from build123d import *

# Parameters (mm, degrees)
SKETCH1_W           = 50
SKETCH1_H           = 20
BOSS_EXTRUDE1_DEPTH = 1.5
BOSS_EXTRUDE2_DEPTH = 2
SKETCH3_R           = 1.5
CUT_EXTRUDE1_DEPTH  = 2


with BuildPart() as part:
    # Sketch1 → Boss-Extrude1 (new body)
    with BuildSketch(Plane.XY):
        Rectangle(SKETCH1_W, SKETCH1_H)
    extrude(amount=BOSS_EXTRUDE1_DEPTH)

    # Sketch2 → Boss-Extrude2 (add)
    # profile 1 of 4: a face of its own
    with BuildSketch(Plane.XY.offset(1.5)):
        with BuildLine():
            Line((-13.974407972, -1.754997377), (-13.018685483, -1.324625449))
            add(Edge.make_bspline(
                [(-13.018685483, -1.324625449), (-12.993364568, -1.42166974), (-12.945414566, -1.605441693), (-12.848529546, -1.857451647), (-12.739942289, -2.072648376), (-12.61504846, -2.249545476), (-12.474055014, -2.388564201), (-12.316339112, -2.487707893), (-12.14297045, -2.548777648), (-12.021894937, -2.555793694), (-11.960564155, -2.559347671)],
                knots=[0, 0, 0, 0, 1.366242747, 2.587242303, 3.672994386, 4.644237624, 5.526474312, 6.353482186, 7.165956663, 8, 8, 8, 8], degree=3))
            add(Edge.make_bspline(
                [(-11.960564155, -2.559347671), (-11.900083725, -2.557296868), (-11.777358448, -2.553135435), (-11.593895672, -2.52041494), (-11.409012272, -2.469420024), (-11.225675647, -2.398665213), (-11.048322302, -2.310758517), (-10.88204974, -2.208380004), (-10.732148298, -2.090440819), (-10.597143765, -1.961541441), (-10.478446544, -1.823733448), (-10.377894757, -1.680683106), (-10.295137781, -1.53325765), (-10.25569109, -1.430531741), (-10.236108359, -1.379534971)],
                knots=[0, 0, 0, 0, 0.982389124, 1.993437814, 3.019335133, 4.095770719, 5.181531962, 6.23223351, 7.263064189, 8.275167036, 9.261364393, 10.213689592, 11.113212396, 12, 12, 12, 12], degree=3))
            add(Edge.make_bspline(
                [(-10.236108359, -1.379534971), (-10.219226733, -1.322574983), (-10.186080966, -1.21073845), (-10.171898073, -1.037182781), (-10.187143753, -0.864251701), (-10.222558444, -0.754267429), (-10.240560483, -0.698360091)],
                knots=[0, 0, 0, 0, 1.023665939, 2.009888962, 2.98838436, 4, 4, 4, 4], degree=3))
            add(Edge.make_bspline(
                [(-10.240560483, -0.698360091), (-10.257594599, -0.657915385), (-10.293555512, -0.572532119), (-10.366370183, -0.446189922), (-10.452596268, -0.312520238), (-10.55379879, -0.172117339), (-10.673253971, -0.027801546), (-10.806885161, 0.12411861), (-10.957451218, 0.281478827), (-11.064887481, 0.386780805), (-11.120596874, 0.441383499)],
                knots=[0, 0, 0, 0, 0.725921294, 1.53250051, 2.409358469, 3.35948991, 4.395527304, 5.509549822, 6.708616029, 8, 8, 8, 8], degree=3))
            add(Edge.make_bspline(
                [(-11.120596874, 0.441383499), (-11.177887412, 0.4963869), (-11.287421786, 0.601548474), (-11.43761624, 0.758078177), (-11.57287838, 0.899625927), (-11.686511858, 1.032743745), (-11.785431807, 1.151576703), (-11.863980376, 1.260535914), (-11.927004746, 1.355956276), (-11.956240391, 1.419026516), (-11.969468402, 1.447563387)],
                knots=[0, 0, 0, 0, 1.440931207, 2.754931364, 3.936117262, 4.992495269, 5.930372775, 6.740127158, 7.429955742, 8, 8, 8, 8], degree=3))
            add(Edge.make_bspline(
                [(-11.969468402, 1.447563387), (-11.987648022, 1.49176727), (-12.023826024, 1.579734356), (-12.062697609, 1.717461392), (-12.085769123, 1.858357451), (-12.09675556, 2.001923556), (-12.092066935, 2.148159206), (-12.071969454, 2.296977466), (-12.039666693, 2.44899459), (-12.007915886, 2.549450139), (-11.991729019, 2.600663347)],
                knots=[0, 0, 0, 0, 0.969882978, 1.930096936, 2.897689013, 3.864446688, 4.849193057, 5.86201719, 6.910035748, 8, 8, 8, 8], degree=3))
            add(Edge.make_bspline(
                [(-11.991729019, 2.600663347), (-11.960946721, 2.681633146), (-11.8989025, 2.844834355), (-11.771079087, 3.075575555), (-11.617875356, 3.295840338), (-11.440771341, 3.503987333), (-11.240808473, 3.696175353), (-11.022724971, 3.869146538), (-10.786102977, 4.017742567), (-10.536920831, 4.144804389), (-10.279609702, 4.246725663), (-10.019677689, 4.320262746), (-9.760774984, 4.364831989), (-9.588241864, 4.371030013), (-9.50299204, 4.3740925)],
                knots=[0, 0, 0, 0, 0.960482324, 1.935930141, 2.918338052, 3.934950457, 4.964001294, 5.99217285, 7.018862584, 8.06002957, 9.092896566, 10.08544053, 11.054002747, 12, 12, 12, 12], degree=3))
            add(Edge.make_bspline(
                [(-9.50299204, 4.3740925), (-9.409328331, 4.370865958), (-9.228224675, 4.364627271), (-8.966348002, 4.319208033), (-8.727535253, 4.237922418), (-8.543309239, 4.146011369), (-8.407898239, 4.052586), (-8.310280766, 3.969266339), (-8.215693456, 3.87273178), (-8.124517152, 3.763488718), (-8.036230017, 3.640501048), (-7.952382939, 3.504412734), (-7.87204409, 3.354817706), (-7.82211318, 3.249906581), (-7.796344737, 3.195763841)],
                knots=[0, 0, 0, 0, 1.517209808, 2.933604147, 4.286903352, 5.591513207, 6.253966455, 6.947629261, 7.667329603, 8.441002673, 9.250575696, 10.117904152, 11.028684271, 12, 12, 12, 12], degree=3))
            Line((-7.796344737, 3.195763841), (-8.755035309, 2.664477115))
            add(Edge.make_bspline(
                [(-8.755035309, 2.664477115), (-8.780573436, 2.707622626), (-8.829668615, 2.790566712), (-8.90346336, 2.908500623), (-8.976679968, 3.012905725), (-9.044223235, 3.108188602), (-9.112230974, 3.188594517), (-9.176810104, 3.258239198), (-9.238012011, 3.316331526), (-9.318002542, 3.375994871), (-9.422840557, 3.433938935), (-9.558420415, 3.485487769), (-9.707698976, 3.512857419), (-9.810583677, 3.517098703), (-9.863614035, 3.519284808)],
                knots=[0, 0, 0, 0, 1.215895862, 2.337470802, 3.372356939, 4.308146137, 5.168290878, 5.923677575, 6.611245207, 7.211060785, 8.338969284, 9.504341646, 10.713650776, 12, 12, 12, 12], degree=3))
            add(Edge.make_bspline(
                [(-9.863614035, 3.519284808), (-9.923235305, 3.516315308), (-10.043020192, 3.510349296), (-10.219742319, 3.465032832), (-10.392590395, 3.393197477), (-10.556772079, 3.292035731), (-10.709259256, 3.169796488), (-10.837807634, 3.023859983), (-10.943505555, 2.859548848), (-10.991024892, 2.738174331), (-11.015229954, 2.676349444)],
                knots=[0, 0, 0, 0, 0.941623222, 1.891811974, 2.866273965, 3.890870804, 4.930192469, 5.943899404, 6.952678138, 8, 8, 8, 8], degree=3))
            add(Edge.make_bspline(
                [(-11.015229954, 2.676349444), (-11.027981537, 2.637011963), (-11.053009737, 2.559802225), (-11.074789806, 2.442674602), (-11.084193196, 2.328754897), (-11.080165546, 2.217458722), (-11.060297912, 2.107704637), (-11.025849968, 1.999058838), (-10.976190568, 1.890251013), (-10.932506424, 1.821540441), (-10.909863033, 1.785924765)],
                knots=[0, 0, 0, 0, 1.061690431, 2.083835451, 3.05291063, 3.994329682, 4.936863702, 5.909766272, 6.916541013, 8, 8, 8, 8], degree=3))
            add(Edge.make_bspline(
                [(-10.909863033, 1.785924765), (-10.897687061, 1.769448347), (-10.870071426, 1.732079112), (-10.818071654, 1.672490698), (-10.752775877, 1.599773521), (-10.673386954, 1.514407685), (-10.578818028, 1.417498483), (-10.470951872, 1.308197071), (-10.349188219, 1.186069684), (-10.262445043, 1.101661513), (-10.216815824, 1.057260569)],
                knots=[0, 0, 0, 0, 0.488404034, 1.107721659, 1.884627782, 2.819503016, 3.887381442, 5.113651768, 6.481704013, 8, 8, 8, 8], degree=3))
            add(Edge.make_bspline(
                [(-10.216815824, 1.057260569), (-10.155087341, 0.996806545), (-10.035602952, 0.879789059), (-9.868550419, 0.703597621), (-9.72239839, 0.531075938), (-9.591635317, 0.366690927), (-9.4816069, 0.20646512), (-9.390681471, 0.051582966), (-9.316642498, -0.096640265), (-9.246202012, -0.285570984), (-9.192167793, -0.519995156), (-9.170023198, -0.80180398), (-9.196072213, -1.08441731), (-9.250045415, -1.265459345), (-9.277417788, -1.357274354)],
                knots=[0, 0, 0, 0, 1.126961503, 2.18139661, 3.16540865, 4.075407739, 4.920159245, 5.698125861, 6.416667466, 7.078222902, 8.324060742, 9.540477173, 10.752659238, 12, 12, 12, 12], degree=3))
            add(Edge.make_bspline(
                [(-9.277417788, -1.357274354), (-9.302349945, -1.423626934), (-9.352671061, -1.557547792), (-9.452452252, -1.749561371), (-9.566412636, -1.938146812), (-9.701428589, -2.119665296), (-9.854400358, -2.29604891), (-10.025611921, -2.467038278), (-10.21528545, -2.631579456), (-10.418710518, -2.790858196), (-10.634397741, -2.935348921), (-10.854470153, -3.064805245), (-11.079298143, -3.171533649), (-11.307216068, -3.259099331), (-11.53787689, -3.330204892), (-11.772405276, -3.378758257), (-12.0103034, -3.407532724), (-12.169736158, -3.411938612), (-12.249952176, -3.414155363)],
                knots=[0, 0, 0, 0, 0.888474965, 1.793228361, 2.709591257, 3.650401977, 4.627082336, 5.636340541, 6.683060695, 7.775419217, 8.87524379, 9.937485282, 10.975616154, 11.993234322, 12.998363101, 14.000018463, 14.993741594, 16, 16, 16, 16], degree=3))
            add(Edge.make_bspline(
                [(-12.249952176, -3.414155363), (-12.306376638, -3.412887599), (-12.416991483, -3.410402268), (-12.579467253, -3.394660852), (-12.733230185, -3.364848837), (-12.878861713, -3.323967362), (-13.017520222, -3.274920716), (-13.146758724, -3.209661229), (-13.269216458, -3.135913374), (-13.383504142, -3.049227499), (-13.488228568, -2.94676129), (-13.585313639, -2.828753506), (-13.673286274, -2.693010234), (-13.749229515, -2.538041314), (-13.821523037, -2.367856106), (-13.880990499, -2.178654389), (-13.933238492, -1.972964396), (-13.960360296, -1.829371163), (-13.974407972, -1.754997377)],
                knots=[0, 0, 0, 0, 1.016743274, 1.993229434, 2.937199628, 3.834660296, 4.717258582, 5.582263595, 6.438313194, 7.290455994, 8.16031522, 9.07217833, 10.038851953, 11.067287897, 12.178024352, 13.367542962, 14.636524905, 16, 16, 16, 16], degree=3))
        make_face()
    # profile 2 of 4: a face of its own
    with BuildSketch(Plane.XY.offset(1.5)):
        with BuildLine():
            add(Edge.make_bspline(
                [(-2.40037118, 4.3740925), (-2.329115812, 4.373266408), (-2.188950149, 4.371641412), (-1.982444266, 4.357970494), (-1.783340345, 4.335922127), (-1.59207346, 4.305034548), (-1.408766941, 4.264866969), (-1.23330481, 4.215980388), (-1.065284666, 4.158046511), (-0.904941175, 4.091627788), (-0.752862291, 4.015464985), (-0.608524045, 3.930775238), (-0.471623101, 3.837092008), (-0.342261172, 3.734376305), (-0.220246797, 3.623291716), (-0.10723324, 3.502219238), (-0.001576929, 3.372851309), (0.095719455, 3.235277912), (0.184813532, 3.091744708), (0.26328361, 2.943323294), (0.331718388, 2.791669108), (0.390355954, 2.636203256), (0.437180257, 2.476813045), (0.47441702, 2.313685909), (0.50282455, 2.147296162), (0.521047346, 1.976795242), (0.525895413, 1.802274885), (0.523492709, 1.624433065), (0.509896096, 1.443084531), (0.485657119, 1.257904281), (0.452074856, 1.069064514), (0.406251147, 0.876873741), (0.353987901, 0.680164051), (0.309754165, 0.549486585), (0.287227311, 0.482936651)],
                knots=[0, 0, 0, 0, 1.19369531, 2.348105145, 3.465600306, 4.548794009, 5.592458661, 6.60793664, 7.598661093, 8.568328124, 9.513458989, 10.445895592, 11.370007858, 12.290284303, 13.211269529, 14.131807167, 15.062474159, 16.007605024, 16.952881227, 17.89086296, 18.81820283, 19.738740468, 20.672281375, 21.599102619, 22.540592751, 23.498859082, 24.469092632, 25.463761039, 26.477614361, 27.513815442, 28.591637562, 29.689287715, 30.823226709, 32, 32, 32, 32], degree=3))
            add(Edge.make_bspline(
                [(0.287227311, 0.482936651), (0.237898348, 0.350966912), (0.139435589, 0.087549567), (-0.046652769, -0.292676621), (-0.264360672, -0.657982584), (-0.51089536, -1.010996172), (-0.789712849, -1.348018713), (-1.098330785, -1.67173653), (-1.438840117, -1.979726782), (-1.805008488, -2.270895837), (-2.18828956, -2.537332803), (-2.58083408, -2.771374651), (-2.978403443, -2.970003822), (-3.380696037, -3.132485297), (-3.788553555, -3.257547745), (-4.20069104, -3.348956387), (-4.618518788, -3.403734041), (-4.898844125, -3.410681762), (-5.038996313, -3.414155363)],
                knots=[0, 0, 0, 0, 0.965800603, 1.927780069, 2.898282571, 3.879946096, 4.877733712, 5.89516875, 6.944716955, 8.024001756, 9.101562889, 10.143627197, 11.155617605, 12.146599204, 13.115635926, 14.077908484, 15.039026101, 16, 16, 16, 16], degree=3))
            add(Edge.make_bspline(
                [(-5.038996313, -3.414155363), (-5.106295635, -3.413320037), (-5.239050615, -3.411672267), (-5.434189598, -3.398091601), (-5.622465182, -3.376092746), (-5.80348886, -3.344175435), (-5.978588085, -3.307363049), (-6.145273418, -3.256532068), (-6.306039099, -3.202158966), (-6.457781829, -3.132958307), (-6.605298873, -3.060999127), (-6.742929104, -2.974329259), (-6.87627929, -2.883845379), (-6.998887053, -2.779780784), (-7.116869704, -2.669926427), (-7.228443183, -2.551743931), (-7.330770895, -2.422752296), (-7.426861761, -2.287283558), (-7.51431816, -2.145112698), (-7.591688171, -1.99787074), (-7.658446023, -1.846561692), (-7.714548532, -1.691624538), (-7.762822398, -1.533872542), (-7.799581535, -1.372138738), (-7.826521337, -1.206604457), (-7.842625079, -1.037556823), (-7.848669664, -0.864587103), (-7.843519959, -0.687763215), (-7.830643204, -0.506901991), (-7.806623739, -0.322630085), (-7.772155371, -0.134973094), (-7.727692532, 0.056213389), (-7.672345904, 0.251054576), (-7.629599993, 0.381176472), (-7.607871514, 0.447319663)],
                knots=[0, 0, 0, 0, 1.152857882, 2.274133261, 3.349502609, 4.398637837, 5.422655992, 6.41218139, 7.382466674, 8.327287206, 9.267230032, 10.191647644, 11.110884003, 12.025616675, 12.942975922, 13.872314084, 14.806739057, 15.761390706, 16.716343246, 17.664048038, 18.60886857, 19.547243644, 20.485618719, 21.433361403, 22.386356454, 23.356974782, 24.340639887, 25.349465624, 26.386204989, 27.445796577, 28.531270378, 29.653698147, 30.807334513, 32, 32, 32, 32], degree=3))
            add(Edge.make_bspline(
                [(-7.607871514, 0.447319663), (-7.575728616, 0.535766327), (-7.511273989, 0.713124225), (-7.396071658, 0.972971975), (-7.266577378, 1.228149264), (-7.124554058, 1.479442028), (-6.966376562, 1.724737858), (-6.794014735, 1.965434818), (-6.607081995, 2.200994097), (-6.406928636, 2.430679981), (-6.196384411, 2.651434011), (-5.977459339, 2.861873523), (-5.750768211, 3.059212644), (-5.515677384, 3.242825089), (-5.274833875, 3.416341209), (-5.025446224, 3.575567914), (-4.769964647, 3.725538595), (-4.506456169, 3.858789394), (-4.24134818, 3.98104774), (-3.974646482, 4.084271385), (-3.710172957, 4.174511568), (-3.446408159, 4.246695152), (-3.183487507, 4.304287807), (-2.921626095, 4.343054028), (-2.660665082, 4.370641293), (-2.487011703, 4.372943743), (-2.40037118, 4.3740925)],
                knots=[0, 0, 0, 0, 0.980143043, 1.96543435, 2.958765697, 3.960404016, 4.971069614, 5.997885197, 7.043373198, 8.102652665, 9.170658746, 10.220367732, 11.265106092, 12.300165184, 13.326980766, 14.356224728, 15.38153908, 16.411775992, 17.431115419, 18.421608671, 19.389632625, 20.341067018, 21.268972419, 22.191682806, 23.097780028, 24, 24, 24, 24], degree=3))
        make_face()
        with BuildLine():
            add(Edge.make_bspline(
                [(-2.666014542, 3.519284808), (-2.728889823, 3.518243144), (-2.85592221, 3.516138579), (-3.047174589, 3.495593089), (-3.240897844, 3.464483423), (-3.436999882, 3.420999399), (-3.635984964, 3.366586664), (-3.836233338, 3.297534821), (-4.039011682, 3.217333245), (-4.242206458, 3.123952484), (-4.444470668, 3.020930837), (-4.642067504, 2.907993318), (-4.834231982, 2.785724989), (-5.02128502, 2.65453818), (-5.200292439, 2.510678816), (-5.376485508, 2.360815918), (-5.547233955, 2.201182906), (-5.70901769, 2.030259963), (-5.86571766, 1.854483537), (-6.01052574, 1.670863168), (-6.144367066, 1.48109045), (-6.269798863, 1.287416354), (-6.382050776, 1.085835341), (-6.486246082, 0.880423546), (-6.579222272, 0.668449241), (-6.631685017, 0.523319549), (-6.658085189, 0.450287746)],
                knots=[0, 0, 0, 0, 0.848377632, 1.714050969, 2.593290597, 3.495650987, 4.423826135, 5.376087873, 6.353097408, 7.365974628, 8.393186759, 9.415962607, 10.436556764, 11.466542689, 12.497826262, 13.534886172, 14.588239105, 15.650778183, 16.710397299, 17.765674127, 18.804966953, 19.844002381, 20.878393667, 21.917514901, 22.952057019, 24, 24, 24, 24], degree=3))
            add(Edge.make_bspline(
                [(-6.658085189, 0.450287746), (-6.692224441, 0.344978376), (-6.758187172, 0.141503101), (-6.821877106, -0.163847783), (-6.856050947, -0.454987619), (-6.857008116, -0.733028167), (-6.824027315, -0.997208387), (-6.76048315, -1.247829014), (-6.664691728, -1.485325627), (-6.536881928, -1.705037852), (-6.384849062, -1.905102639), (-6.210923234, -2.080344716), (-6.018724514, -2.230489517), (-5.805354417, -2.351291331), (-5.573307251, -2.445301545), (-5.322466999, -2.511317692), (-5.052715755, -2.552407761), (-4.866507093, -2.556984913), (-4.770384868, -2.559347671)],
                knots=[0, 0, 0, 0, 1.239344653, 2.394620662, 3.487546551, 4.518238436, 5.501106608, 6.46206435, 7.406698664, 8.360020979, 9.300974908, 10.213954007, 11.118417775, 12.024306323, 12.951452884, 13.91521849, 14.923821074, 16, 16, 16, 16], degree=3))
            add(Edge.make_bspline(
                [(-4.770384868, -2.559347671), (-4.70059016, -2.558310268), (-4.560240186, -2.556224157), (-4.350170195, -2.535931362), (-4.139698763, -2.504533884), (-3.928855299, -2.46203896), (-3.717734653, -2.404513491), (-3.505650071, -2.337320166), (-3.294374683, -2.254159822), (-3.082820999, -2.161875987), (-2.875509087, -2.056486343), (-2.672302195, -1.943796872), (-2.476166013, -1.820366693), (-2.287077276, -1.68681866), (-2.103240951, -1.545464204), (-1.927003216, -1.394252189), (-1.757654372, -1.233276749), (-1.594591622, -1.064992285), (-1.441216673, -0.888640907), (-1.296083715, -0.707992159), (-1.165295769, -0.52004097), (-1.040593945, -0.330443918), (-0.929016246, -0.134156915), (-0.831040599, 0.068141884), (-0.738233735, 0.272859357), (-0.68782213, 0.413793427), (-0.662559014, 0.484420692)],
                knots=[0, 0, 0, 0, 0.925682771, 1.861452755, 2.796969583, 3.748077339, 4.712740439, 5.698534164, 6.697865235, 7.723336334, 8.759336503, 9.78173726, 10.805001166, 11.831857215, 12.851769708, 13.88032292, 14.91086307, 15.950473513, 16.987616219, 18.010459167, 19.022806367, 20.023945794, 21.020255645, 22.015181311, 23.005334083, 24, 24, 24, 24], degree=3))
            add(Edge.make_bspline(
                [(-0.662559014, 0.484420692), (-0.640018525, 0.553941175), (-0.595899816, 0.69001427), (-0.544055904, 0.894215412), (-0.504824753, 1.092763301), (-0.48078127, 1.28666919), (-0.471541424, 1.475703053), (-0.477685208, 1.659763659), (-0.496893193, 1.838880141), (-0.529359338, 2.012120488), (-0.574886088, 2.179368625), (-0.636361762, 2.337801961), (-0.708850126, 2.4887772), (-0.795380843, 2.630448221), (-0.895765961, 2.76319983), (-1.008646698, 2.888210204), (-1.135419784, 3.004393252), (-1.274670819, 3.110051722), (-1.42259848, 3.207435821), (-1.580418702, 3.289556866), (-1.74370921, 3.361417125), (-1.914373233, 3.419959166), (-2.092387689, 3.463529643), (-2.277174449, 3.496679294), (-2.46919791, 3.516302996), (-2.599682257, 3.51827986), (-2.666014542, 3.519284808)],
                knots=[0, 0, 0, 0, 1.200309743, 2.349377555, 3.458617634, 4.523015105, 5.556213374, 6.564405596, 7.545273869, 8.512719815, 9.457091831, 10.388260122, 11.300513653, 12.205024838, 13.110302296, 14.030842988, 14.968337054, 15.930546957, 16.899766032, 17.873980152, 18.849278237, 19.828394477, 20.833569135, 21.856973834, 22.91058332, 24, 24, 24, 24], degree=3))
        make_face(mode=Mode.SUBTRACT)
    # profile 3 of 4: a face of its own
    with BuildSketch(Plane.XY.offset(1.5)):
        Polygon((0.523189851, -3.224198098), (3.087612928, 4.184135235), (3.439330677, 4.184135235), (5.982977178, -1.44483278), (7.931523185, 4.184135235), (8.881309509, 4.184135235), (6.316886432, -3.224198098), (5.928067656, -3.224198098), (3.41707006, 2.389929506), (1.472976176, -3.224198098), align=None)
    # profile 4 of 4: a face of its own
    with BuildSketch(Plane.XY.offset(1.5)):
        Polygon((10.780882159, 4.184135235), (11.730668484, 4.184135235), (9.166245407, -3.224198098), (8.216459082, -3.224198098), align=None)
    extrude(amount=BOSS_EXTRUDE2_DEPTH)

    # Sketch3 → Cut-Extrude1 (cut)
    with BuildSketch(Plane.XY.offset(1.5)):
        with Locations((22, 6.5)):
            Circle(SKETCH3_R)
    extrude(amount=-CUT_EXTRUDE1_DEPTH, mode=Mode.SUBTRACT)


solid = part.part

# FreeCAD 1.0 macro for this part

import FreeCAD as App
import Part
import Sketcher

V = App.Vector
Q = App.Units.Quantity

doc = App.newDocument("Part")
body = doc.addObject("PartDesign::Body", "Body")

# Sketch on XY plane
sketch1 = body.newObject("Sketcher::SketchObject", "Sketch")
sketch1.AttachmentSupport = (doc.getObject("XY_Plane"), [""])
sketch1.MapMode = "FlatFace"
sketch1.addGeometry([
    Part.LineSegment(V(-25, 10, 0), V(-25, -10, 0)),
    Part.LineSegment(V(-25, -10, 0), V(25, -10, 0)),
    Part.LineSegment(V(25, -10, 0), V(25, 10, 0)),
    Part.LineSegment(V(25, 10, 0), V(-25, 10, 0)),
], False)
sketch1.addConstraint([
    Sketcher.Constraint("Coincident", 0, 2, 1, 1),
    Sketcher.Constraint("Coincident", 1, 2, 2, 1),
    Sketcher.Constraint("Coincident", 2, 2, 3, 1),
    Sketcher.Constraint("Coincident", 3, 2, 0, 1),
    Sketcher.Constraint("Vertical", 0),
    Sketcher.Constraint("Horizontal", 1),
    Sketcher.Constraint("Vertical", 2),
    Sketcher.Constraint("Horizontal", 3),
    Sketcher.Constraint("Symmetric", 0, 2, 2, 2, -1, 1),
    Sketcher.Constraint("DistanceX", 1, 1, 1, 2, Q("50 mm")),
    Sketcher.Constraint("DistanceY", 0, 2, 0, 1, Q("20 mm")),
])
pad1 = body.newObject("PartDesign::Pad", "Pad")
pad1.Profile = sketch1
pad1.Length = 1.5

# Sketch on XY plane
sketch2 = body.newObject("Sketcher::SketchObject", "Sketch001")
sketch2.AttachmentSupport = (doc.getObject("XY_Plane"), [""])
sketch2.MapMode = "FlatFace"
sketch2.AttachmentOffset = App.Placement(V(0, 0, 1.5), App.Rotation())
sketch2.addGeometry([
    Part.LineSegment(V(-13.018685, -1.324625, 0), V(-13.974408, -1.754997, 0)),  # 0
    Part.BSplineCurve([V(-12.249952, -3.414155, 0), V(-12.306377, -3.412888, 0), V(-12.416991, -3.410402, 0), V(-12.579467, -3.394661, 0), V(-12.73323, -3.364849, 0), V(-12.878862, -3.323967, 0), V(-13.01752, -3.274921, 0), V(-13.146759, -3.209661, 0), V(-13.269216, -3.135913, 0), V(-13.383504, -3.049227, 0), V(-13.488229, -2.946761, 0), V(-13.585314, -2.828754, 0), V(-13.673286, -2.69301, 0), V(-13.74923, -2.538041, 0), V(-13.821523, -2.367856, 0), V(-13.88099, -2.178654, 0), V(-13.933238, -1.972964, 0), V(-13.96036, -1.829371, 0), V(-13.974408, -1.754997, 0)], [4, 1, 1, 1, 1, 1, 1, 1, 1, 1, 1, 1, 1, 1, 1, 1, 4], [0, 1.016743274, 1.993229434, 2.937199628, 3.834660296, 4.717258582, 5.582263595, 6.438313194, 7.290455994, 8.16031522, 9.07217833, 10.038851953, 11.067287897, 12.178024352, 13.367542962, 14.636524905, 16], False, 3, [1, 1, 1, 1, 1, 1, 1, 1, 1, 1, 1, 1, 1, 1, 1, 1, 1, 1, 1], False),  # 1
    Part.BSplineCurve([V(-9.277418, -1.357274, 0), V(-9.30235, -1.423627, 0), V(-9.352671, -1.557548, 0), V(-9.452452, -1.749561, 0), V(-9.566413, -1.938147, 0), V(-9.701429, -2.119665, 0), V(-9.8544, -2.296049, 0), V(-10.025612, -2.467038, 0), V(-10.215285, -2.631579, 0), V(-10.418711, -2.790858, 0), V(-10.634398, -2.935349, 0), V(-10.85447, -3.064805, 0), V(-11.079298, -3.171534, 0), V(-11.307216, -3.259099, 0), V(-11.537877, -3.330205, 0), V(-11.772405, -3.378758, 0), V(-12.010303, -3.407533, 0), V(-12.169736, -3.411939, 0), V(-12.249952, -3.414155, 0)], [4, 1, 1, 1, 1, 1, 1, 1, 1, 1, 1, 1, 1, 1, 1, 1, 4], [0, 0.888474965, 1.793228361, 2.709591257, 3.650401977, 4.627082336, 5.636340541, 6.683060695, 7.775419217, 8.87524379, 9.937485282, 10.975616154, 11.993234322, 12.998363101, 14.000018463, 14.993741594, 16], False, 3, [1, 1, 1, 1, 1, 1, 1, 1, 1, 1, 1, 1, 1, 1, 1, 1, 1, 1, 1], False),  # 2
    Part.BSplineCurve([V(-10.216816, 1.057261, 0), V(-10.155087, 0.996807, 0), V(-10.035603, 0.879789, 0), V(-9.86855, 0.703598, 0), V(-9.722398, 0.531076, 0), V(-9.591635, 0.366691, 0), V(-9.481607, 0.206465, 0), V(-9.390681, 0.051583, 0), V(-9.316642, -0.09664, 0), V(-9.246202, -0.285571, 0), V(-9.192168, -0.519995, 0), V(-9.170023, -0.801804, 0), V(-9.196072, -1.084417, 0), V(-9.250045, -1.265459, 0), V(-9.277418, -1.357274, 0)], [4, 1, 1, 1, 1, 1, 1, 1, 1, 1, 1, 1, 4], [0, 1.126961503, 2.18139661, 3.16540865, 4.075407739, 4.920159245, 5.698125861, 6.416667466, 7.078222902, 8.324060742, 9.540477173, 10.752659238, 12], False, 3, [1, 1, 1, 1, 1, 1, 1, 1, 1, 1, 1, 1, 1, 1, 1], False),  # 3
    Part.BSplineCurve([V(-10.909863, 1.785925, 0), V(-10.897687, 1.769448, 0), V(-10.870071, 1.732079, 0), V(-10.818072, 1.672491, 0), V(-10.752776, 1.599774, 0), V(-10.673387, 1.514408, 0), V(-10.578818, 1.417498, 0), V(-10.470952, 1.308197, 0), V(-10.349188, 1.18607, 0), V(-10.262445, 1.101662, 0), V(-10.216816, 1.057261, 0)], [4, 1, 1, 1, 1, 1, 1, 1, 4], [0, 0.488404034, 1.107721659, 1.884627782, 2.819503016, 3.887381442, 5.113651768, 6.481704013, 8], False, 3, [1, 1, 1, 1, 1, 1, 1, 1, 1, 1, 1], False),  # 4
    Part.BSplineCurve([V(-11.01523, 2.676349, 0), V(-11.027982, 2.637012, 0), V(-11.05301, 2.559802, 0), V(-11.07479, 2.442675, 0), V(-11.084193, 2.328755, 0), V(-11.080166, 2.217459, 0), V(-11.060298, 2.107705, 0), V(-11.02585, 1.999059, 0), V(-10.976191, 1.890251, 0), V(-10.932506, 1.82154, 0), V(-10.909863, 1.785925, 0)], [4, 1, 1, 1, 1, 1, 1, 1, 4], [0, 1.061690431, 2.083835451, 3.05291063, 3.994329682, 4.936863702, 5.909766272, 6.916541013, 8], False, 3, [1, 1, 1, 1, 1, 1, 1, 1, 1, 1, 1], False),  # 5
    Part.BSplineCurve([V(-9.863614, 3.519285, 0), V(-9.923235, 3.516315, 0), V(-10.04302, 3.510349, 0), V(-10.219742, 3.465033, 0), V(-10.39259, 3.393197, 0), V(-10.556772, 3.292036, 0), V(-10.709259, 3.169796, 0), V(-10.837808, 3.02386, 0), V(-10.943506, 2.859549, 0), V(-10.991025, 2.738174, 0), V(-11.01523, 2.676349, 0)], [4, 1, 1, 1, 1, 1, 1, 1, 4], [0, 0.941623222, 1.891811974, 2.866273965, 3.890870804, 4.930192469, 5.943899404, 6.952678138, 8], False, 3, [1, 1, 1, 1, 1, 1, 1, 1, 1, 1, 1], False),  # 6
    Part.BSplineCurve([V(-8.755035, 2.664477, 0), V(-8.780573, 2.707623, 0), V(-8.829669, 2.790567, 0), V(-8.903463, 2.908501, 0), V(-8.97668, 3.012906, 0), V(-9.044223, 3.108189, 0), V(-9.112231, 3.188595, 0), V(-9.17681, 3.258239, 0), V(-9.238012, 3.316332, 0), V(-9.318003, 3.375995, 0), V(-9.422841, 3.433939, 0), V(-9.55842, 3.485488, 0), V(-9.707699, 3.512857, 0), V(-9.810584, 3.517099, 0), V(-9.863614, 3.519285, 0)], [4, 1, 1, 1, 1, 1, 1, 1, 1, 1, 1, 1, 4], [0, 1.215895862, 2.337470802, 3.372356939, 4.308146137, 5.168290878, 5.923677575, 6.611245207, 7.211060785, 8.338969284, 9.504341646, 10.713650776, 12], False, 3, [1, 1, 1, 1, 1, 1, 1, 1, 1, 1, 1, 1, 1, 1, 1], False),  # 7
    Part.LineSegment(V(-8.755035, 2.664477, 0), V(-7.796345, 3.195764, 0)),  # 8
    Part.BSplineCurve([V(-9.502992, 4.374092, 0), V(-9.409328, 4.370866, 0), V(-9.228225, 4.364627, 0), V(-8.966348, 4.319208, 0), V(-8.727535, 4.237922, 0), V(-8.543309, 4.146011, 0), V(-8.407898, 4.052586, 0), V(-8.310281, 3.969266, 0), V(-8.215693, 3.872732, 0), V(-8.124517, 3.763489, 0), V(-8.03623, 3.640501, 0), V(-7.952383, 3.504413, 0), V(-7.872044, 3.354818, 0), V(-7.822113, 3.249907, 0), V(-7.796345, 3.195764, 0)], [4, 1, 1, 1, 1, 1, 1, 1, 1, 1, 1, 1, 4], [0, 1.517209808, 2.933604147, 4.286903352, 5.591513207, 6.253966455, 6.947629261, 7.667329603, 8.441002673, 9.250575696, 10.117904152, 11.028684271, 12], False, 3, [1, 1, 1, 1, 1, 1, 1, 1, 1, 1, 1, 1, 1, 1, 1], False),  # 9
    Part.BSplineCurve([V(-11.991729, 2.600663, 0), V(-11.960947, 2.681633, 0), V(-11.898903, 2.844834, 0), V(-11.771079, 3.075576, 0), V(-11.617875, 3.29584, 0), V(-11.440771, 3.503987, 0), V(-11.240808, 3.696175, 0), V(-11.022725, 3.869147, 0), V(-10.786103, 4.017743, 0), V(-10.536921, 4.144804, 0), V(-10.27961, 4.246726, 0), V(-10.019678, 4.320263, 0), V(-9.760775, 4.364832, 0), V(-9.588242, 4.37103, 0), V(-9.502992, 4.374092, 0)], [4, 1, 1, 1, 1, 1, 1, 1, 1, 1, 1, 1, 4], [0, 0.960482324, 1.935930141, 2.918338052, 3.934950457, 4.964001294, 5.99217285, 7.018862584, 8.06002957, 9.092896566, 10.08544053, 11.054002747, 12], False, 3, [1, 1, 1, 1, 1, 1, 1, 1, 1, 1, 1, 1, 1, 1, 1], False),  # 10
    Part.BSplineCurve([V(-11.969468, 1.447563, 0), V(-11.987648, 1.491767, 0), V(-12.023826, 1.579734, 0), V(-12.062698, 1.717461, 0), V(-12.085769, 1.858357, 0), V(-12.096756, 2.001924, 0), V(-12.092067, 2.148159, 0), V(-12.071969, 2.296977, 0), V(-12.039667, 2.448995, 0), V(-12.007916, 2.54945, 0), V(-11.991729, 2.600663, 0)], [4, 1, 1, 1, 1, 1, 1, 1, 4], [0, 0.969882978, 1.930096936, 2.897689013, 3.864446688, 4.849193057, 5.86201719, 6.910035748, 8], False, 3, [1, 1, 1, 1, 1, 1, 1, 1, 1, 1, 1], False),  # 11
    Part.BSplineCurve([V(-11.120597, 0.441383, 0), V(-11.177887, 0.496387, 0), V(-11.287422, 0.601548, 0), V(-11.437616, 0.758078, 0), V(-11.572878, 0.899626, 0), V(-11.686512, 1.032744, 0), V(-11.785432, 1.151577, 0), V(-11.86398, 1.260536, 0), V(-11.927005, 1.355956, 0), V(-11.95624, 1.419027, 0), V(-11.969468, 1.447563, 0)], [4, 1, 1, 1, 1, 1, 1, 1, 4], [0, 1.440931207, 2.754931364, 3.936117262, 4.992495269, 5.930372775, 6.740127158, 7.429955742, 8], False, 3, [1, 1, 1, 1, 1, 1, 1, 1, 1, 1, 1], False),  # 12
    Part.BSplineCurve([V(-10.24056, -0.69836, 0), V(-10.257595, -0.657915, 0), V(-10.293556, -0.572532, 0), V(-10.36637, -0.44619, 0), V(-10.452596, -0.31252, 0), V(-10.553799, -0.172117, 0), V(-10.673254, -0.027802, 0), V(-10.806885, 0.124119, 0), V(-10.957451, 0.281479, 0), V(-11.064887, 0.386781, 0), V(-11.120597, 0.441383, 0)], [4, 1, 1, 1, 1, 1, 1, 1, 4], [0, 0.725921294, 1.53250051, 2.409358469, 3.35948991, 4.395527304, 5.509549822, 6.708616029, 8], False, 3, [1, 1, 1, 1, 1, 1, 1, 1, 1, 1, 1], False),  # 13
    Part.BSplineCurve([V(-10.236108, -1.379535, 0), V(-10.219227, -1.322575, 0), V(-10.186081, -1.210738, 0), V(-10.171898, -1.037183, 0), V(-10.187144, -0.864252, 0), V(-10.222558, -0.754267, 0), V(-10.24056, -0.69836, 0)], [4, 1, 1, 1, 4], [0, 1.023665939, 2.009888962, 2.98838436, 4], False, 3, [1, 1, 1, 1, 1, 1, 1], False),  # 14
    Part.BSplineCurve([V(-11.960564, -2.559348, 0), V(-11.900084, -2.557297, 0), V(-11.777358, -2.553135, 0), V(-11.593896, -2.520415, 0), V(-11.409012, -2.46942, 0), V(-11.225676, -2.398665, 0), V(-11.048322, -2.310759, 0), V(-10.88205, -2.20838, 0), V(-10.732148, -2.090441, 0), V(-10.597144, -1.961541, 0), V(-10.478447, -1.823733, 0), V(-10.377895, -1.680683, 0), V(-10.295138, -1.533258, 0), V(-10.255691, -1.430532, 0), V(-10.236108, -1.379535, 0)], [4, 1, 1, 1, 1, 1, 1, 1, 1, 1, 1, 1, 4], [0, 0.982389124, 1.993437814, 3.019335133, 4.095770719, 5.181531962, 6.23223351, 7.263064189, 8.275167036, 9.261364393, 10.213689592, 11.113212396, 12], False, 3, [1, 1, 1, 1, 1, 1, 1, 1, 1, 1, 1, 1, 1, 1, 1], False),  # 15
    Part.BSplineCurve([V(-13.018685, -1.324625, 0), V(-12.993365, -1.42167, 0), V(-12.945415, -1.605442, 0), V(-12.84853, -1.857452, 0), V(-12.739942, -2.072648, 0), V(-12.615048, -2.249545, 0), V(-12.474055, -2.388564, 0), V(-12.316339, -2.487708, 0), V(-12.14297, -2.548778, 0), V(-12.021895, -2.555794, 0), V(-11.960564, -2.559348, 0)], [4, 1, 1, 1, 1, 1, 1, 1, 4], [0, 1.366242747, 2.587242303, 3.672994386, 4.644237624, 5.526474312, 6.353482186, 7.165956663, 8], False, 3, [1, 1, 1, 1, 1, 1, 1, 1, 1, 1, 1], False),  # 16
    Part.BSplineCurve([V(-2.400371, 4.374092, 0), V(-2.329116, 4.373266, 0), V(-2.18895, 4.371641, 0), V(-1.982444, 4.35797, 0), V(-1.78334, 4.335922, 0), V(-1.592073, 4.305035, 0), V(-1.408767, 4.264867, 0), V(-1.233305, 4.21598, 0), V(-1.065285, 4.158047, 0), V(-0.904941, 4.091628, 0), V(-0.752862, 4.015465, 0), V(-0.608524, 3.930775, 0), V(-0.471623, 3.837092, 0), V(-0.342261, 3.734376, 0), V(-0.220247, 3.623292, 0), V(-0.107233, 3.502219, 0), V(-0.001577, 3.372851, 0), V(0.095719, 3.235278, 0), V(0.184814, 3.091745, 0), V(0.263284, 2.943323, 0), V(0.331718, 2.791669, 0), V(0.390356, 2.636203, 0), V(0.43718, 2.476813, 0), V(0.474417, 2.313686, 0), V(0.502825, 2.147296, 0), V(0.521047, 1.976795, 0), V(0.525895, 1.802275, 0), V(0.523493, 1.624433, 0), V(0.509896, 1.443085, 0), V(0.485657, 1.257904, 0), V(0.452075, 1.069065, 0), V(0.406251, 0.876874, 0), V(0.353988, 0.680164, 0), V(0.309754, 0.549487, 0), V(0.287227, 0.482937, 0)], [4, 1, 1, 1, 1, 1, 1, 1, 1, 1, 1, 1, 1, 1, 1, 1, 1, 1, 1, 1, 1, 1, 1, 1, 1, 1, 1, 1, 1, 1, 1, 1, 4], [0, 1.19369531, 2.348105145, 3.465600306, 4.548794009, 5.592458661, 6.60793664, 7.598661093, 8.568328124, 9.513458989, 10.445895592, 11.370007858, 12.290284303, 13.211269529, 14.131807167, 15.062474159, 16.007605024, 16.952881227, 17.89086296, 18.81820283, 19.738740468, 20.672281375, 21.599102619, 22.540592751, 23.498859082, 24.469092632, 25.463761039, 26.477614361, 27.513815442, 28.591637562, 29.689287715, 30.823226709, 32], False, 3, [1, 1, 1, 1, 1, 1, 1, 1, 1, 1, 1, 1, 1, 1, 1, 1, 1, 1, 1, 1, 1, 1, 1, 1, 1, 1, 1, 1, 1, 1, 1, 1, 1, 1, 1], False),  # 17
    Part.BSplineCurve([V(-7.607872, 0.44732, 0), V(-7.575729, 0.535766, 0), V(-7.511274, 0.713124, 0), V(-7.396072, 0.972972, 0), V(-7.266577, 1.228149, 0), V(-7.124554, 1.479442, 0), V(-6.966377, 1.724738, 0), V(-6.794015, 1.965435, 0), V(-6.607082, 2.200994, 0), V(-6.406929, 2.43068, 0), V(-6.196384, 2.651434, 0), V(-5.977459, 2.861874, 0), V(-5.750768, 3.059213, 0), V(-5.515677, 3.242825, 0), V(-5.274834, 3.416341, 0), V(-5.025446, 3.575568, 0), V(-4.769965, 3.725539, 0), V(-4.506456, 3.858789, 0), V(-4.241348, 3.981048, 0), V(-3.974646, 4.084271, 0), V(-3.710173, 4.174512, 0), V(-3.446408, 4.246695, 0), V(-3.183488, 4.304288, 0), V(-2.921626, 4.343054, 0), V(-2.660665, 4.370641, 0), V(-2.487012, 4.372944, 0), V(-2.400371, 4.374092, 0)], [4, 1, 1, 1, 1, 1, 1, 1, 1, 1, 1, 1, 1, 1, 1, 1, 1, 1, 1, 1, 1, 1, 1, 1, 4], [0, 0.980143043, 1.96543435, 2.958765697, 3.960404016, 4.971069614, 5.997885197, 7.043373198, 8.102652665, 9.170658746, 10.220367732, 11.265106092, 12.300165184, 13.326980766, 14.356224728, 15.38153908, 16.411775992, 17.431115419, 18.421608671, 19.389632625, 20.341067018, 21.268972419, 22.191682806, 23.097780028, 24], False, 3, [1, 1, 1, 1, 1, 1, 1, 1, 1, 1, 1, 1, 1, 1, 1, 1, 1, 1, 1, 1, 1, 1, 1, 1, 1, 1, 1], False),  # 18
    Part.BSplineCurve([V(-5.038996, -3.414155, 0), V(-5.106296, -3.41332, 0), V(-5.239051, -3.411672, 0), V(-5.43419, -3.398092, 0), V(-5.622465, -3.376093, 0), V(-5.803489, -3.344175, 0), V(-5.978588, -3.307363, 0), V(-6.145273, -3.256532, 0), V(-6.306039, -3.202159, 0), V(-6.457782, -3.132958, 0), V(-6.605299, -3.060999, 0), V(-6.742929, -2.974329, 0), V(-6.876279, -2.883845, 0), V(-6.998887, -2.779781, 0), V(-7.11687, -2.669926, 0), V(-7.228443, -2.551744, 0), V(-7.330771, -2.422752, 0), V(-7.426862, -2.287284, 0), V(-7.514318, -2.145113, 0), V(-7.591688, -1.997871, 0), V(-7.658446, -1.846562, 0), V(-7.714549, -1.691625, 0), V(-7.762822, -1.533873, 0), V(-7.799582, -1.372139, 0), V(-7.826521, -1.206604, 0), V(-7.842625, -1.037557, 0), V(-7.84867, -0.864587, 0), V(-7.84352, -0.687763, 0), V(-7.830643, -0.506902, 0), V(-7.806624, -0.32263, 0), V(-7.772155, -0.134973, 0), V(-7.727693, 0.056213, 0), V(-7.672346, 0.251055, 0), V(-7.6296, 0.381176, 0), V(-7.607872, 0.44732, 0)], [4, 1, 1, 1, 1, 1, 1, 1, 1, 1, 1, 1, 1, 1, 1, 1, 1, 1, 1, 1, 1, 1, 1, 1, 1, 1, 1, 1, 1, 1, 1, 1, 4], [0, 1.152857882, 2.274133261, 3.349502609, 4.398637837, 5.422655992, 6.41218139, 7.382466674, 8.327287206, 9.267230032, 10.191647644, 11.110884003, 12.025616675, 12.942975922, 13.872314084, 14.806739057, 15.761390706, 16.716343246, 17.664048038, 18.60886857, 19.547243644, 20.485618719, 21.433361403, 22.386356454, 23.356974782, 24.340639887, 25.349465624, 26.386204989, 27.445796577, 28.531270378, 29.653698147, 30.807334513, 32], False, 3, [1, 1, 1, 1, 1, 1, 1, 1, 1, 1, 1, 1, 1, 1, 1, 1, 1, 1, 1, 1, 1, 1, 1, 1, 1, 1, 1, 1, 1, 1, 1, 1, 1, 1, 1], False),  # 19
    Part.BSplineCurve([V(0.287227, 0.482937, 0), V(0.237898, 0.350967, 0), V(0.139436, 0.08755, 0), V(-0.046653, -0.292677, 0), V(-0.264361, -0.657983, 0), V(-0.510895, -1.010996, 0), V(-0.789713, -1.348019, 0), V(-1.098331, -1.671737, 0), V(-1.43884, -1.979727, 0), V(-1.805008, -2.270896, 0), V(-2.18829, -2.537333, 0), V(-2.580834, -2.771375, 0), V(-2.978403, -2.970004, 0), V(-3.380696, -3.132485, 0), V(-3.788554, -3.257548, 0), V(-4.200691, -3.348956, 0), V(-4.618519, -3.403734, 0), V(-4.898844, -3.410682, 0), V(-5.038996, -3.414155, 0)], [4, 1, 1, 1, 1, 1, 1, 1, 1, 1, 1, 1, 1, 1, 1, 1, 4], [0, 0.965800603, 1.927780069, 2.898282571, 3.879946096, 4.877733712, 5.89516875, 6.944716955, 8.024001756, 9.101562889, 10.143627197, 11.155617605, 12.146599204, 13.115635926, 14.077908484, 15.039026101, 16], False, 3, [1, 1, 1, 1, 1, 1, 1, 1, 1, 1, 1, 1, 1, 1, 1, 1, 1, 1, 1], False),  # 20
    Part.BSplineCurve([V(-0.662559, 0.484421, 0), V(-0.640019, 0.553941, 0), V(-0.5959, 0.690014, 0), V(-0.544056, 0.894215, 0), V(-0.504825, 1.092763, 0), V(-0.480781, 1.286669, 0), V(-0.471541, 1.475703, 0), V(-0.477685, 1.659764, 0), V(-0.496893, 1.83888, 0), V(-0.529359, 2.01212, 0), V(-0.574886, 2.179369, 0), V(-0.636362, 2.337802, 0), V(-0.70885, 2.488777, 0), V(-0.795381, 2.630448, 0), V(-0.895766, 2.7632, 0), V(-1.008647, 2.88821, 0), V(-1.13542, 3.004393, 0), V(-1.274671, 3.110052, 0), V(-1.422598, 3.207436, 0), V(-1.580419, 3.289557, 0), V(-1.743709, 3.361417, 0), V(-1.914373, 3.419959, 0), V(-2.092388, 3.46353, 0), V(-2.277174, 3.496679, 0), V(-2.469198, 3.516303, 0), V(-2.599682, 3.51828, 0), V(-2.666015, 3.519285, 0)], [4, 1, 1, 1, 1, 1, 1, 1, 1, 1, 1, 1, 1, 1, 1, 1, 1, 1, 1, 1, 1, 1, 1, 1, 4], [0, 1.200309743, 2.349377555, 3.458617634, 4.523015105, 5.556213374, 6.564405596, 7.545273869, 8.512719815, 9.457091831, 10.388260122, 11.300513653, 12.205024838, 13.110302296, 14.030842988, 14.968337054, 15.930546957, 16.899766032, 17.873980152, 18.849278237, 19.828394477, 20.833569135, 21.856973834, 22.91058332, 24], False, 3, [1, 1, 1, 1, 1, 1, 1, 1, 1, 1, 1, 1, 1, 1, 1, 1, 1, 1, 1, 1, 1, 1, 1, 1, 1, 1, 1], False),  # 21
    Part.BSplineCurve([V(-4.770385, -2.559348, 0), V(-4.70059, -2.55831, 0), V(-4.56024, -2.556224, 0), V(-4.35017, -2.535931, 0), V(-4.139699, -2.504534, 0), V(-3.928855, -2.462039, 0), V(-3.717735, -2.404513, 0), V(-3.50565, -2.33732, 0), V(-3.294375, -2.25416, 0), V(-3.082821, -2.161876, 0), V(-2.875509, -2.056486, 0), V(-2.672302, -1.943797, 0), V(-2.476166, -1.820367, 0), V(-2.287077, -1.686819, 0), V(-2.103241, -1.545464, 0), V(-1.927003, -1.394252, 0), V(-1.757654, -1.233277, 0), V(-1.594592, -1.064992, 0), V(-1.441217, -0.888641, 0), V(-1.296084, -0.707992, 0), V(-1.165296, -0.520041, 0), V(-1.040594, -0.330444, 0), V(-0.929016, -0.134157, 0), V(-0.831041, 0.068142, 0), V(-0.738234, 0.272859, 0), V(-0.687822, 0.413793, 0), V(-0.662559, 0.484421, 0)], [4, 1, 1, 1, 1, 1, 1, 1, 1, 1, 1, 1, 1, 1, 1, 1, 1, 1, 1, 1, 1, 1, 1, 1, 4], [0, 0.925682771, 1.861452755, 2.796969583, 3.748077339, 4.712740439, 5.698534164, 6.697865235, 7.723336334, 8.759336503, 9.78173726, 10.805001166, 11.831857215, 12.851769708, 13.88032292, 14.91086307, 15.950473513, 16.987616219, 18.010459167, 19.022806367, 20.023945794, 21.020255645, 22.015181311, 23.005334083, 24], False, 3, [1, 1, 1, 1, 1, 1, 1, 1, 1, 1, 1, 1, 1, 1, 1, 1, 1, 1, 1, 1, 1, 1, 1, 1, 1, 1, 1], False),  # 22
    Part.BSplineCurve([V(-6.658085, 0.450288, 0), V(-6.692224, 0.344978, 0), V(-6.758187, 0.141503, 0), V(-6.821877, -0.163848, 0), V(-6.856051, -0.454988, 0), V(-6.857008, -0.733028, 0), V(-6.824027, -0.997208, 0), V(-6.760483, -1.247829, 0), V(-6.664692, -1.485326, 0), V(-6.536882, -1.705038, 0), V(-6.384849, -1.905103, 0), V(-6.210923, -2.080345, 0), V(-6.018725, -2.23049, 0), V(-5.805354, -2.351291, 0), V(-5.573307, -2.445302, 0), V(-5.322467, -2.511318, 0), V(-5.052716, -2.552408, 0), V(-4.866507, -2.556985, 0), V(-4.770385, -2.559348, 0)], [4, 1, 1, 1, 1, 1, 1, 1, 1, 1, 1, 1, 1, 1, 1, 1, 4], [0, 1.239344653, 2.394620662, 3.487546551, 4.518238436, 5.501106608, 6.46206435, 7.406698664, 8.360020979, 9.300974908, 10.213954007, 11.118417775, 12.024306323, 12.951452884, 13.91521849, 14.923821074, 16], False, 3, [1, 1, 1, 1, 1, 1, 1, 1, 1, 1, 1, 1, 1, 1, 1, 1, 1, 1, 1], False),  # 23
    Part.BSplineCurve([V(-2.666015, 3.519285, 0), V(-2.72889, 3.518243, 0), V(-2.855922, 3.516139, 0), V(-3.047175, 3.495593, 0), V(-3.240898, 3.464483, 0), V(-3.437, 3.420999, 0), V(-3.635985, 3.366587, 0), V(-3.836233, 3.297535, 0), V(-4.039012, 3.217333, 0), V(-4.242206, 3.123952, 0), V(-4.444471, 3.020931, 0), V(-4.642068, 2.907993, 0), V(-4.834232, 2.785725, 0), V(-5.021285, 2.654538, 0), V(-5.200292, 2.510679, 0), V(-5.376486, 2.360816, 0), V(-5.547234, 2.201183, 0), V(-5.709018, 2.03026, 0), V(-5.865718, 1.854484, 0), V(-6.010526, 1.670863, 0), V(-6.144367, 1.48109, 0), V(-6.269799, 1.287416, 0), V(-6.382051, 1.085835, 0), V(-6.486246, 0.880424, 0), V(-6.579222, 0.668449, 0), V(-6.631685, 0.52332, 0), V(-6.658085, 0.450288, 0)], [4, 1, 1, 1, 1, 1, 1, 1, 1, 1, 1, 1, 1, 1, 1, 1, 1, 1, 1, 1, 1, 1, 1, 1, 4], [0, 0.848377632, 1.714050969, 2.593290597, 3.495650987, 4.423826135, 5.376087873, 6.353097408, 7.365974628, 8.393186759, 9.415962607, 10.436556764, 11.466542689, 12.497826262, 13.534886172, 14.588239105, 15.650778183, 16.710397299, 17.765674127, 18.804966953, 19.844002381, 20.878393667, 21.917514901, 22.952057019, 24], False, 3, [1, 1, 1, 1, 1, 1, 1, 1, 1, 1, 1, 1, 1, 1, 1, 1, 1, 1, 1, 1, 1, 1, 1, 1, 1, 1, 1], False),  # 24
    Part.LineSegment(V(3.087613, 4.184135, 0), V(0.52319, -3.224198, 0)),  # 25
    Part.LineSegment(V(0.52319, -3.224198, 0), V(1.472976, -3.224198, 0)),  # 26
    Part.LineSegment(V(1.472976, -3.224198, 0), V(3.41707, 2.38993, 0)),  # 27
    Part.LineSegment(V(3.41707, 2.38993, 0), V(5.928068, -3.224198, 0)),  # 28
    Part.LineSegment(V(5.928068, -3.224198, 0), V(6.316886, -3.224198, 0)),  # 29
    Part.LineSegment(V(6.316886, -3.224198, 0), V(8.88131, 4.184135, 0)),  # 30
    Part.LineSegment(V(8.88131, 4.184135, 0), V(7.931523, 4.184135, 0)),  # 31
    Part.LineSegment(V(7.931523, 4.184135, 0), V(5.982977, -1.444833, 0)),  # 32
    Part.LineSegment(V(5.982977, -1.444833, 0), V(3.439331, 4.184135, 0)),  # 33
    Part.LineSegment(V(3.439331, 4.184135, 0), V(3.087613, 4.184135, 0)),  # 34
    Part.LineSegment(V(11.730668, 4.184135, 0), V(10.780882, 4.184135, 0)),  # 35
    Part.LineSegment(V(10.780882, 4.184135, 0), V(8.216459, -3.224198, 0)),  # 36
    Part.LineSegment(V(8.216459, -3.224198, 0), V(9.166245, -3.224198, 0)),  # 37
    Part.LineSegment(V(9.166245, -3.224198, 0), V(11.730668, 4.184135, 0)),  # 38
], False)
sketch2.addConstraint([
    Sketcher.Constraint("Block", 1),
    Sketcher.Constraint("Block", 2),
    Sketcher.Constraint("Block", 3),
    Sketcher.Constraint("Block", 4),
    Sketcher.Constraint("Block", 5),
    Sketcher.Constraint("Block", 6),
    Sketcher.Constraint("Block", 7),
    Sketcher.Constraint("Block", 9),
    Sketcher.Constraint("Block", 10),
    Sketcher.Constraint("Block", 11),
    Sketcher.Constraint("Block", 12),
    Sketcher.Constraint("Block", 13),
    Sketcher.Constraint("Block", 14),
    Sketcher.Constraint("Block", 15),
    Sketcher.Constraint("Block", 16),
    Sketcher.Constraint("Block", 17),
    Sketcher.Constraint("Block", 18),
    Sketcher.Constraint("Block", 19),
    Sketcher.Constraint("Block", 20),
    Sketcher.Constraint("Block", 21),
    Sketcher.Constraint("Block", 22),
    Sketcher.Constraint("Block", 23),
    Sketcher.Constraint("Block", 24),
    Sketcher.Constraint("Coincident", 0, 2, 1, 2),
    Sketcher.Constraint("Coincident", 7, 1, 8, 1),
    Sketcher.Constraint("Coincident", 8, 2, 9, 2),
    Sketcher.Constraint("Coincident", 16, 1, 0, 1),
    Sketcher.Constraint("Coincident", 25, 2, 26, 1),
    Sketcher.Constraint("Coincident", 26, 2, 27, 1),
    Sketcher.Constraint("Coincident", 27, 2, 28, 1),
    Sketcher.Constraint("Coincident", 28, 2, 29, 1),
    Sketcher.Constraint("Coincident", 29, 2, 30, 1),
    Sketcher.Constraint("Coincident", 30, 2, 31, 1),
    Sketcher.Constraint("Coincident", 31, 2, 32, 1),
    Sketcher.Constraint("Coincident", 32, 2, 33, 1),
    Sketcher.Constraint("Coincident", 33, 2, 34, 1),
    Sketcher.Constraint("Coincident", 34, 2, 25, 1),
    Sketcher.Constraint("Coincident", 35, 2, 36, 1),
    Sketcher.Constraint("Coincident", 36, 2, 37, 1),
    Sketcher.Constraint("Coincident", 37, 2, 38, 1),
    Sketcher.Constraint("Coincident", 38, 2, 35, 1),
    Sketcher.Constraint("Horizontal", 26),
    Sketcher.Constraint("Horizontal", 29),
    Sketcher.Constraint("Horizontal", 31),
    Sketcher.Constraint("Horizontal", 34),
    Sketcher.Constraint("Horizontal", 35),
    Sketcher.Constraint("Horizontal", 37),
    Sketcher.Constraint("Parallel", 25, 30),
    Sketcher.Constraint("Parallel", 30, 36),
    Sketcher.Constraint("Parallel", 36, 38),
    Sketcher.Constraint("Horizontal", 26, 2, 28, 2),
    Sketcher.Constraint("Horizontal", 31, 2, 33, 2),
    Sketcher.Constraint("Horizontal", 34, 2, 35, 2),
    Sketcher.Constraint("Horizontal", 29, 2, 36, 2),
    Sketcher.Constraint("Equal", 26, 31),
    Sketcher.Constraint("Equal", 31, 35),
    Sketcher.Constraint("DistanceX", 26, 2, 32, 2, Q("4.510001 mm")),
    Sketcher.Constraint("DistanceX", 29, 1, 29, 2, Q("0.388819 mm")),
    Sketcher.Constraint("DistanceY", 25, 2, -1, 1, Q("3.224198 mm")),
    Sketcher.Constraint("Distance", 25, Q("7.839622 mm")),
    Sketcher.Constraint("DistanceX", 26, 1, 26, 2, Q("0.949786 mm")),
    Sketcher.Constraint("DistanceX", 34, 2, 34, 1, Q("0.351718 mm")),
    Sketcher.Constraint("DistanceX", -1, 1, 25, 2, Q("0.52319 mm")),
    Sketcher.Constraint("DistanceX", -1, 1, 27, 2, Q("3.41707 mm")),
    Sketcher.Constraint("DistanceY", -1, 1, 27, 2, Q("2.38993 mm")),
    Sketcher.Constraint("DistanceX", -1, 1, 30, 2, Q("8.88131 mm")),
    Sketcher.Constraint("DistanceX", -1, 1, 33, 2, Q("3.439331 mm")),
    Sketcher.Constraint("DistanceX", -1, 1, 36, 2, Q("8.216459 mm")),
    Sketcher.Constraint("DistanceY", 32, 2, 33, 2, Q("5.628968 mm")),
])
pad2 = body.newObject("PartDesign::Pad", "Pad001")
pad2.Profile = sketch2
pad2.Length = 2

# Sketch on XY plane
sketch3 = body.newObject("Sketcher::SketchObject", "Sketch002")
sketch3.AttachmentSupport = (doc.getObject("XY_Plane"), [""])
sketch3.MapMode = "FlatFace"
sketch3.AttachmentOffset = App.Placement(V(0, 0, 1.5), App.Rotation())
sketch3.addGeometry(Part.Circle(V(22, 6.5, 0), V(0, 0, 1), 1.5), False)
sketch3.addConstraint([
    Sketcher.Constraint("Diameter", 0, Q("3 mm")),
    Sketcher.Constraint("DistanceX", -1, 1, 0, 3, Q("22 mm")),
    Sketcher.Constraint("DistanceY", -1, 1, 0, 3, Q("6.5 mm")),
])
pocket1 = body.newObject("PartDesign::Pocket", "Pocket")
pocket1.Profile = sketch3
pocket1.Length = 2

doc.recompute()
